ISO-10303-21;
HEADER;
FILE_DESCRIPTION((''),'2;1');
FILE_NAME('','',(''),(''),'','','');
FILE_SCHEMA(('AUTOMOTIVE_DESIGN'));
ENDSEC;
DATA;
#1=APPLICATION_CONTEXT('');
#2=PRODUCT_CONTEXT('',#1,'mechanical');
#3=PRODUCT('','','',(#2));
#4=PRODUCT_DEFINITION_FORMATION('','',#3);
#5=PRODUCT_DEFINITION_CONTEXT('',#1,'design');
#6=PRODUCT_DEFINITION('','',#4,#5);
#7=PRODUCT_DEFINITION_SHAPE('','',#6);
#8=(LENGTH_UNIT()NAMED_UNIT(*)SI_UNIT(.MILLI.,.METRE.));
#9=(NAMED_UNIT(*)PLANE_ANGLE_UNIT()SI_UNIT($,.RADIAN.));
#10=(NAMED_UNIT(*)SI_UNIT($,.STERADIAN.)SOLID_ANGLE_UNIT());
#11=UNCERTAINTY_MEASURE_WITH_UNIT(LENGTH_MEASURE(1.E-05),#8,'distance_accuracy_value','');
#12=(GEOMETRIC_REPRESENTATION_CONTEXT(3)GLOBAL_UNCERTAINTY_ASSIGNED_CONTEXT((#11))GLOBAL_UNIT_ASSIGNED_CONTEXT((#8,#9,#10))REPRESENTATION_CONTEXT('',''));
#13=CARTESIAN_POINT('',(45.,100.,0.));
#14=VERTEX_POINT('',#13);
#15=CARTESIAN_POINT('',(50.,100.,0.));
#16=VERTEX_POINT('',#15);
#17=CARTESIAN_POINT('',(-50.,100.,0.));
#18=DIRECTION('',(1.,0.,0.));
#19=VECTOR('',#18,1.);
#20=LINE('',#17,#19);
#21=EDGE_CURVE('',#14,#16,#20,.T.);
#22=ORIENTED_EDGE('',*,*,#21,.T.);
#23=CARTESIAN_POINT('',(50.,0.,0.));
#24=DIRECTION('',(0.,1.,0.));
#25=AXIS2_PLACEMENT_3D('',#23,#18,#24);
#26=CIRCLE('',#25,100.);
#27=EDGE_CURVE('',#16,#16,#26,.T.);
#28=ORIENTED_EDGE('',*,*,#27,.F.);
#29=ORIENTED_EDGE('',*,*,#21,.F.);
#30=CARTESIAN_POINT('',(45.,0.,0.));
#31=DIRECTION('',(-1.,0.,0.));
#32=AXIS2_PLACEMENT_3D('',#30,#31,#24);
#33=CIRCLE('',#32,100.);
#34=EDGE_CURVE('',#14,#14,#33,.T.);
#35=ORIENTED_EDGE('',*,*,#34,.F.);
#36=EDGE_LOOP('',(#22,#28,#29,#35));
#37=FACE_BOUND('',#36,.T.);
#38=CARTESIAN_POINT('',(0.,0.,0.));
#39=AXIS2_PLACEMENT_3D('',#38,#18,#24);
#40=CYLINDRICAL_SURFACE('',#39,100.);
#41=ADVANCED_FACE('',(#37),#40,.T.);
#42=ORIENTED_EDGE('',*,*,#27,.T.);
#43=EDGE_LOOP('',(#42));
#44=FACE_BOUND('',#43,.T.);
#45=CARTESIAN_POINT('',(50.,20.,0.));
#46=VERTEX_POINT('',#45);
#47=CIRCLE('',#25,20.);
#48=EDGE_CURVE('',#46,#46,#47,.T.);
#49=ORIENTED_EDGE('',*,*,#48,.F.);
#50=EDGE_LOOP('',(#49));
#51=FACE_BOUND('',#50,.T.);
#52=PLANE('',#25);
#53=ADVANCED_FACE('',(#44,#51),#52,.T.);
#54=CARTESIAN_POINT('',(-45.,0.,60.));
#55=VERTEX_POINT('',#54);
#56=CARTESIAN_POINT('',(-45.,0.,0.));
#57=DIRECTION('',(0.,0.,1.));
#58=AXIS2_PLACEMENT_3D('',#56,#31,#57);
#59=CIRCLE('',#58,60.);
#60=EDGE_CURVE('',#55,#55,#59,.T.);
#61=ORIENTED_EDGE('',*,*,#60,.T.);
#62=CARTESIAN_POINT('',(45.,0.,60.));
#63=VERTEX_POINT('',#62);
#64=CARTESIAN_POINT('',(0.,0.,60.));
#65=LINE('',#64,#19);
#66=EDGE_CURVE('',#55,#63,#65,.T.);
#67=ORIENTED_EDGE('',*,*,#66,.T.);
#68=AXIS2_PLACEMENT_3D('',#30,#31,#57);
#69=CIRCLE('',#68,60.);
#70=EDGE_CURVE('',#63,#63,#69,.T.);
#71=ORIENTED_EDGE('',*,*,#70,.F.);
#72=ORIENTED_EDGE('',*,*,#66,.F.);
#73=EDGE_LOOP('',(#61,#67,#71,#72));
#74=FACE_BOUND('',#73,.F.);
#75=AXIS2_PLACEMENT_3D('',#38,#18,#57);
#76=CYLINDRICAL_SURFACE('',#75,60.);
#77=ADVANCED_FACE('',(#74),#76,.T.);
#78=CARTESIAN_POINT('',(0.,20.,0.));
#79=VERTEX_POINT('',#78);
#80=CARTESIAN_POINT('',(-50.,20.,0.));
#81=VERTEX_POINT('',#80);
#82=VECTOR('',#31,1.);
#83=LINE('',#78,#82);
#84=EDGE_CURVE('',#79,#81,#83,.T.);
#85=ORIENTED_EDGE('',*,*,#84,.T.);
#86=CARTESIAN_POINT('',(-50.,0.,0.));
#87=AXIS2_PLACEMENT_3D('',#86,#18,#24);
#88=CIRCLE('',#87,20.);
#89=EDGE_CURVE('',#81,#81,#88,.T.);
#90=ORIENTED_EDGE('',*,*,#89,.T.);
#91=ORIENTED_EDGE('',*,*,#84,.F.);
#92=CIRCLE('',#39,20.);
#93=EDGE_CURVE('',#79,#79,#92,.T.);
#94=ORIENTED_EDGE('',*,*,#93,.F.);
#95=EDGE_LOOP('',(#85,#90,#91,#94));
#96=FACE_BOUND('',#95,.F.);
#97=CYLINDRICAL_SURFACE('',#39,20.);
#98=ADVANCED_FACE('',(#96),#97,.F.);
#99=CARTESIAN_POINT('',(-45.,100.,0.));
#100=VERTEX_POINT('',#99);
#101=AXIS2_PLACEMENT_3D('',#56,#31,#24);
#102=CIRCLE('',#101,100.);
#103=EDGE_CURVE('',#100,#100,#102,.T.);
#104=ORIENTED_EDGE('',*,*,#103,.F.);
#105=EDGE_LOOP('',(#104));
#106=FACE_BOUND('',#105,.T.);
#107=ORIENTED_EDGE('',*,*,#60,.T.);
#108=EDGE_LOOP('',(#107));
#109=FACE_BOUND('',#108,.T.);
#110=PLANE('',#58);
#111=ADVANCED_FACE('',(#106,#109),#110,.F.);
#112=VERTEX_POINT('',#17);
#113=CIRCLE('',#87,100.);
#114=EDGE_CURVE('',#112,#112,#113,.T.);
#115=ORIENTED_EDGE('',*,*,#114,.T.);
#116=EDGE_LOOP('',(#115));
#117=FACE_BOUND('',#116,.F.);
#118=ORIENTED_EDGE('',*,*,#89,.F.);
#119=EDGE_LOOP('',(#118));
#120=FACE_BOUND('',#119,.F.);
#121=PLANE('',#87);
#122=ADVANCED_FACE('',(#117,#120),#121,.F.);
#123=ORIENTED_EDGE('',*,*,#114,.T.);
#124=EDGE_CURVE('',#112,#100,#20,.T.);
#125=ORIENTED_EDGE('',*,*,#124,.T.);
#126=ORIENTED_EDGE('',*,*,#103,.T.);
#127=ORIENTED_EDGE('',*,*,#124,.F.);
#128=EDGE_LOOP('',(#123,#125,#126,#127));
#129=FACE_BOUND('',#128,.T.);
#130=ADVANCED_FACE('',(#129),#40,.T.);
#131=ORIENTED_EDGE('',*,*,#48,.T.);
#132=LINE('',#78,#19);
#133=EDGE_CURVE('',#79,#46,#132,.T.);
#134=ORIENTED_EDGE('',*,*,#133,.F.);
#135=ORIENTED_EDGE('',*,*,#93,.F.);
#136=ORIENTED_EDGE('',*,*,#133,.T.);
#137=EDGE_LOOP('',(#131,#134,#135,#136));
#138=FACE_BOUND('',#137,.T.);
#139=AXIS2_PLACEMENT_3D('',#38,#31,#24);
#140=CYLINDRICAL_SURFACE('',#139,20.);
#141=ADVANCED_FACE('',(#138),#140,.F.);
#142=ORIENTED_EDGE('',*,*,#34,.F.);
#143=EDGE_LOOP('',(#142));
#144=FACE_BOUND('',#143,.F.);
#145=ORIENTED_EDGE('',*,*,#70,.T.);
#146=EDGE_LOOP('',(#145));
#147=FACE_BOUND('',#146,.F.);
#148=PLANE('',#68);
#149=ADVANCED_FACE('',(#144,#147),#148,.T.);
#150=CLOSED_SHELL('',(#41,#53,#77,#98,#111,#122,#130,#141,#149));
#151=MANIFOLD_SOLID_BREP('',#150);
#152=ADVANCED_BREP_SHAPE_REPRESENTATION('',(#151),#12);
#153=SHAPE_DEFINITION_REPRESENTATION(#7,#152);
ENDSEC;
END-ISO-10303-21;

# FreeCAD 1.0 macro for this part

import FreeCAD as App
import Part
import Sketcher
from FreeCAD import Vector

doc = App.newDocument("Part")
body = doc.addObject("PartDesign::Body", "Body")

sketch1 = doc.addObject("Sketcher::SketchObject", "Sketch")
body.addObject(sketch1)
sketch1.AttachmentSupport = (doc.YZ_Plane, [""])
sketch1.MapMode = "FlatFace"
sketch1.addGeometry([
    Part.Circle(Vector(0, 0, 0), Vector(0, 0, 1), 100),
    Part.Circle(Vector(0, 0, 0), Vector(0, 0, 1), 20),
], False)
sketch1.addConstraint([
    Sketcher.Constraint("Coincident", 0, 3, -1, 1),
    Sketcher.Constraint("Coincident", 1, 3, -1, 1),
    Sketcher.Constraint("Diameter", 0, 200.0),
    Sketcher.Constraint("Diameter", 1, 40.0),
])
pad1 = doc.addObject("PartDesign::Pad", "Pad")
body.addObject(pad1)
pad1.Profile = sketch1
pad1.Type = "TwoLengths"
pad1.Length = 50
pad1.Length2 = 50

sketch2 = doc.addObject("Sketcher::SketchObject", "Sketch001")
body.addObject(sketch2)
sketch2.AttachmentSupport = (doc.XZ_Plane, [""])
sketch2.MapMode = "FlatFace"
sketch2.addGeometry([
    Part.LineSegment(Vector(-45, 100, 0), Vector(-45, 60, 0)),
    Part.LineSegment(Vector(-45, 60, 0), Vector(45, 60, 0)),
    Part.LineSegment(Vector(45, 60, 0), Vector(45, 100, 0)),
    Part.LineSegment(Vector(45, 100, 0), Vector(-45, 100, 0)),
], False)
sketch2.addConstraint([
    Sketcher.Constraint("Coincident", 0, 2, 1, 1),
    Sketcher.Constraint("Coincident", 1, 2, 2, 1),
    Sketcher.Constraint("Coincident", 2, 2, 3, 1),
    Sketcher.Constraint("Coincident", 3, 2, 0, 1),
    Sketcher.Constraint("Vertical", 0),
    Sketcher.Constraint("Horizontal", 1),
    Sketcher.Constraint("Vertical", 2),
    Sketcher.Constraint("Horizontal", 3),
    Sketcher.Constraint("DistanceX", 1, 1, 1, 2, 90.0),
    Sketcher.Constraint("DistanceY", 0, 2, 0, 1, 40.0),
    Sketcher.Constraint("DistanceX", 0, 2, -1, 1, 45.0),
    Sketcher.Constraint("DistanceY", -1, 1, 0, 2, 60.0),
])
groove = doc.addObject("PartDesign::Groove", "Groove")
body.addObject(groove)
groove.Profile = sketch2
groove.ReferenceAxis = (sketch2, ["H_Axis"])
groove.Angle = 360

doc.recompute()
